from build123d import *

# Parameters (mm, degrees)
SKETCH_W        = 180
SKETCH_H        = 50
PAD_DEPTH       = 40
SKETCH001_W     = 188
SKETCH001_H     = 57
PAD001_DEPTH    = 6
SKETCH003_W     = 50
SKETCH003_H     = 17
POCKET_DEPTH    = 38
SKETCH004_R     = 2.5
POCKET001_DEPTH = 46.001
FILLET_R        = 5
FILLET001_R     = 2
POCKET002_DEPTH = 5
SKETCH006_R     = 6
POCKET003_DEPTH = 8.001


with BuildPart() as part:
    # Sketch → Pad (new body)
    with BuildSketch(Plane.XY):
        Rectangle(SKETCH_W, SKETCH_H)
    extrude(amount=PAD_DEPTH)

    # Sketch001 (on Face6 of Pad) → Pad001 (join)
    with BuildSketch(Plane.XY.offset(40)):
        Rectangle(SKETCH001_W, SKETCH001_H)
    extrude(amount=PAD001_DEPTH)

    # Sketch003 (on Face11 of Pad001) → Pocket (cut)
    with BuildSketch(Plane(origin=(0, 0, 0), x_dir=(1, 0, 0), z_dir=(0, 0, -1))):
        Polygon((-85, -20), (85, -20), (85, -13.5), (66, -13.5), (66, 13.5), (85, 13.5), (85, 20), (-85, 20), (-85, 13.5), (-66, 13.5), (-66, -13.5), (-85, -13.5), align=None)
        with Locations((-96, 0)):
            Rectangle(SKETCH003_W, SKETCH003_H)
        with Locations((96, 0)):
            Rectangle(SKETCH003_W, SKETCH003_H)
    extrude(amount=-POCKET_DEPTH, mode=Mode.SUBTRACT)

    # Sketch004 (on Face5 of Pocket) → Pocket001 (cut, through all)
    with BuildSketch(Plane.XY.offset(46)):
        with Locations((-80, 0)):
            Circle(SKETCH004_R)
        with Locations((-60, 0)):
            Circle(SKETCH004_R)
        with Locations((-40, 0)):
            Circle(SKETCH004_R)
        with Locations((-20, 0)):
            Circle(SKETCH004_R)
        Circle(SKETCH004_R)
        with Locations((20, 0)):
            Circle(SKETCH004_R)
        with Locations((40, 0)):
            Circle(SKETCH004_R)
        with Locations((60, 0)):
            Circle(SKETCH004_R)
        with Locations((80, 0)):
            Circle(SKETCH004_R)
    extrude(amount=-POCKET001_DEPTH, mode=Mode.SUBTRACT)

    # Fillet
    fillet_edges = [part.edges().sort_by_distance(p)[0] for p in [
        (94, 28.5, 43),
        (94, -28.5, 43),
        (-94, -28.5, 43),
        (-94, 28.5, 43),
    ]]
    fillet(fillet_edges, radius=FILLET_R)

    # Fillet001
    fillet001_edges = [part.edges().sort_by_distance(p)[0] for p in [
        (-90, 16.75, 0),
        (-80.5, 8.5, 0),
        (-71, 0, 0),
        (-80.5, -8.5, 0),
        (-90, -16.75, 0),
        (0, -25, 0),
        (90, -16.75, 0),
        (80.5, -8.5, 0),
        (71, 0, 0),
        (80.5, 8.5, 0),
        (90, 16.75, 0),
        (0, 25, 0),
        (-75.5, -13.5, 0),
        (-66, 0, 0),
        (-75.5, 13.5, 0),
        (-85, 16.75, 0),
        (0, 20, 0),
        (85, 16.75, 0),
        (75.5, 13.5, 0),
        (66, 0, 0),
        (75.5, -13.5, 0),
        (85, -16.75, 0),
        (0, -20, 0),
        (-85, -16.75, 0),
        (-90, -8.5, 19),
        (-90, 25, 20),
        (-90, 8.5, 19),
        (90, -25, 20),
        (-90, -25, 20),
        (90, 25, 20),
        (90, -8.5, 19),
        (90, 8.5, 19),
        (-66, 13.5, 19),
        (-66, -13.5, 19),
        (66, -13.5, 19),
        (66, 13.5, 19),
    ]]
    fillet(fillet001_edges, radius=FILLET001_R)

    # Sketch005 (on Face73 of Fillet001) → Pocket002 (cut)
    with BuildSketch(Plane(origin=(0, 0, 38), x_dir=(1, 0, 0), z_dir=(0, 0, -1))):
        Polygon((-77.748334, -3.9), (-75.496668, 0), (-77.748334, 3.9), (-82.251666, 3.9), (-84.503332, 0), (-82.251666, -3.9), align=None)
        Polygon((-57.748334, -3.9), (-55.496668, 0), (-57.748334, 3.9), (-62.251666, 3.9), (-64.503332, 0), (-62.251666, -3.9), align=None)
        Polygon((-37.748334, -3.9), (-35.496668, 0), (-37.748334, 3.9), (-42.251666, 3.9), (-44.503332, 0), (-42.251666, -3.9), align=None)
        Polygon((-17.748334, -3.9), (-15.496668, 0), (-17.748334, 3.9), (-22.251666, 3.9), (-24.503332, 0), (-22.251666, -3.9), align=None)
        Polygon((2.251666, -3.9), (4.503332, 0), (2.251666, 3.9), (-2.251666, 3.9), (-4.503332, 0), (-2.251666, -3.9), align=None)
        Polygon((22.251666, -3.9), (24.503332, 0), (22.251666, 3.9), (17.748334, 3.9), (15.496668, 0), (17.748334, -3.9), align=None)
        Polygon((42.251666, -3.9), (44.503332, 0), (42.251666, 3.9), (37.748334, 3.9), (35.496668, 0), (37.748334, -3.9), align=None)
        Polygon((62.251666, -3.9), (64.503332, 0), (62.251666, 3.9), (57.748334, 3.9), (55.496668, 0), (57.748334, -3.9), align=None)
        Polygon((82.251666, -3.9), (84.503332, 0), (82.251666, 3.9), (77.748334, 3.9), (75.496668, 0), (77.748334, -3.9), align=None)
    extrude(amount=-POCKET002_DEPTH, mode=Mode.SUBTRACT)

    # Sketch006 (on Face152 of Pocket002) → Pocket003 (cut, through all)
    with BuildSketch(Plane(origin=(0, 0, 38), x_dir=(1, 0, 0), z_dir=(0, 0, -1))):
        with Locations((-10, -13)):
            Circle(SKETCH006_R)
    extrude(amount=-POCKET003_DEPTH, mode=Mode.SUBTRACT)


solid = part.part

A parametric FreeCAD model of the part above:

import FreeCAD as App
import Part
import Sketcher
Q = App.Units.Quantity


def edges_at(feature, points):
    """Names of the edges that pass closest to the given points."""
    edges = feature.Shape.Edges
    near = lambda p: min(range(len(edges)), key=lambda i: edges[i].distToShape(Part.Vertex(*p))[0])
    return sorted({f"Edge{near(p) + 1}" for p in points})

doc = App.newDocument("Part")
body = doc.addObject("PartDesign::Body", "Body")

sketch1 = body.newObject("Sketcher::SketchObject", "Sketch")
sketch1.AttachmentSupport = (doc.getObject("XY_Plane"), [""])
sketch1.MapMode = "FlatFace"
sketch1.addGeometry(Part.LineSegment(App.Vector(-90, 25, 0), App.Vector(-90, -25, 0)), False)
sketch1.addGeometry(Part.LineSegment(App.Vector(-90, -25, 0), App.Vector(90, -25, 0)), False)
sketch1.addGeometry(Part.LineSegment(App.Vector(90, -25, 0), App.Vector(90, 25, 0)), False)
sketch1.addGeometry(Part.LineSegment(App.Vector(90, 25, 0), App.Vector(-90, 25, 0)), False)
sketch1.addConstraint(Sketcher.Constraint("Coincident", 0, 2, 1, 1))
sketch1.addConstraint(Sketcher.Constraint("Coincident", 1, 2, 2, 1))
sketch1.addConstraint(Sketcher.Constraint("Coincident", 2, 2, 3, 1))
sketch1.addConstraint(Sketcher.Constraint("Coincident", 3, 2, 0, 1))
sketch1.addConstraint(Sketcher.Constraint("Vertical", 0))
sketch1.addConstraint(Sketcher.Constraint("Horizontal", 1))
sketch1.addConstraint(Sketcher.Constraint("Vertical", 2))
sketch1.addConstraint(Sketcher.Constraint("Horizontal", 3))
sketch1.addConstraint(Sketcher.Constraint("Symmetric", 0, 2, 2, 2, -1, 1))
sketch1.addConstraint(Sketcher.Constraint("DistanceX", 1, 1, 1, 2, 180.0))
sketch1.addConstraint(Sketcher.Constraint("DistanceY", 0, 2, 0, 1, 50.0))
pad1 = body.newObject("PartDesign::Pad", "Pad")
pad1.Profile = sketch1
pad1.Length = 40

sketch2 = body.newObject("Sketcher::SketchObject", "Sketch001")
sketch2.AttachmentSupport = (doc.getObject("XY_Plane"), [""])
sketch2.MapMode = "FlatFace"
sketch2.AttachmentOffset = App.Placement(App.Vector(0, 0, 40), App.Rotation())
sketch2.addGeometry(Part.LineSegment(App.Vector(-94, 28, 0), App.Vector(-94, -28, 0)), False)
sketch2.addGeometry(Part.LineSegment(App.Vector(-94, -28, 0), App.Vector(94, -28, 0)), False)
sketch2.addGeometry(Part.LineSegment(App.Vector(94, -28, 0), App.Vector(94, 28, 0)), False)
sketch2.addGeometry(Part.LineSegment(App.Vector(94, 28, 0), App.Vector(-94, 28, 0)), False)
sketch2.addConstraint(Sketcher.Constraint("Coincident", 0, 2, 1, 1))
sketch2.addConstraint(Sketcher.Constraint("Coincident", 1, 2, 2, 1))
sketch2.addConstraint(Sketcher.Constraint("Coincident", 2, 2, 3, 1))
sketch2.addConstraint(Sketcher.Constraint("Coincident", 3, 2, 0, 1))
sketch2.addConstraint(Sketcher.Constraint("Vertical", 0))
sketch2.addConstraint(Sketcher.Constraint("Horizontal", 1))
sketch2.addConstraint(Sketcher.Constraint("Vertical", 2))
sketch2.addConstraint(Sketcher.Constraint("Horizontal", 3))
sketch2.addConstraint(Sketcher.Constraint("Symmetric", 0, 2, 2, 2, -1, 1))
sketch2.addConstraint(Sketcher.Constraint("DistanceX", 1, 1, 1, 2, 188.0))
sketch2.addConstraint(Sketcher.Constraint("DistanceY", 0, 2, 0, 1, 57.0))
pad2 = body.newObject("PartDesign::Pad", "Pad001")
pad2.Profile = sketch2
pad2.Length = 6

sketch3 = body.newObject("Sketcher::SketchObject", "Sketch002")
sketch3.AttachmentSupport = (doc.getObject("XY_Plane"), [""])
sketch3.MapMode = "FlatFace"
sketch3.addGeometry(Part.LineSegment(App.Vector(-85, 20, 0), App.Vector(85, 20, 0)), False)
sketch3.addGeometry(Part.LineSegment(App.Vector(85, 20, 0), App.Vector(85, 14, 0)), False)
sketch3.addGeometry(Part.LineSegment(App.Vector(85, 14, 0), App.Vector(66, 14, 0)), False)
sketch3.addGeometry(Part.LineSegment(App.Vector(66, 14, 0), App.Vector(66, -14, 0)), False)
sketch3.addGeometry(Part.LineSegment(App.Vector(66, -14, 0), App.Vector(85, -14, 0)), False)
sketch3.addGeometry(Part.LineSegment(App.Vector(85, -14, 0), App.Vector(85, -20, 0)), False)
sketch3.addGeometry(Part.LineSegment(App.Vector(85, -20, 0), App.Vector(-85, -20, 0)), False)
sketch3.addGeometry(Part.LineSegment(App.Vector(-85, -20, 0), App.Vector(-85, -14, 0)), False)
sketch3.addGeometry(Part.LineSegment(App.Vector(-85, -14, 0), App.Vector(-66, -14, 0)), False)
sketch3.addGeometry(Part.LineSegment(App.Vector(-66, -14, 0), App.Vector(-66, 14, 0)), False)
sketch3.addGeometry(Part.LineSegment(App.Vector(-66, 14, 0), App.Vector(-85, 14, 0)), False)
sketch3.addGeometry(Part.LineSegment(App.Vector(-85, 14, 0), App.Vector(-85, 20, 0)), False)
sketch3.addGeometry(Part.LineSegment(App.Vector(-121, -8, 0), App.Vector(-121, 8, 0)), False)
sketch3.addGeometry(Part.LineSegment(App.Vector(-121, 8, 0), App.Vector(-71, 8, 0)), False)
sketch3.addGeometry(Part.LineSegment(App.Vector(-71, 8, 0), App.Vector(-71, -8, 0)), False)
sketch3.addGeometry(Part.LineSegment(App.Vector(-71, -8, 0), App.Vector(-121, -8, 0)), False)
sketch3.addGeometry(Part.LineSegment(App.Vector(71, -8, 0), App.Vector(71, 8, 0)), False)
sketch3.addGeometry(Part.LineSegment(App.Vector(71, 8, 0), App.Vector(121, 8, 0)), False)
sketch3.addGeometry(Part.LineSegment(App.Vector(121, 8, 0), App.Vector(121, -8, 0)), False)
sketch3.addGeometry(Part.LineSegment(App.Vector(121, -8, 0), App.Vector(71, -8, 0)), False)
sketch3.addConstraint(Sketcher.Constraint("Coincident", 0, 2, 1, 1))
sketch3.addConstraint(Sketcher.Constraint("Coincident", 1, 2, 2, 1))
sketch3.addConstraint(Sketcher.Constraint("Coincident", 2, 2, 3, 1))
sketch3.addConstraint(Sketcher.Constraint("Coincident", 3, 2, 4, 1))
sketch3.addConstraint(Sketcher.Constraint("Coincident", 4, 2, 5, 1))
sketch3.addConstraint(Sketcher.Constraint("Coincident", 5, 2, 6, 1))
sketch3.addConstraint(Sketcher.Constraint("Coincident", 6, 2, 7, 1))
sketch3.addConstraint(Sketcher.Constraint("Coincident", 7, 2, 8, 1))
sketch3.addConstraint(Sketcher.Constraint("Coincident", 8, 2, 9, 1))
sketch3.addConstraint(Sketcher.Constraint("Coincident", 9, 2, 10, 1))
sketch3.addConstraint(Sketcher.Constraint("Coincident", 10, 2, 11, 1))
sketch3.addConstraint(Sketcher.Constraint("Coincident", 11, 2, 0, 1))
sketch3.addConstraint(Sketcher.Constraint("Coincident", 12, 2, 13, 1))
sketch3.addConstraint(Sketcher.Constraint("Coincident", 13, 2, 14, 1))
sketch3.addConstraint(Sketcher.Constraint("Coincident", 14, 2, 15, 1))
sketch3.addConstraint(Sketcher.Constraint("Coincident", 15, 2, 12, 1))
sketch3.addConstraint(Sketcher.Constraint("Coincident", 16, 2, 17, 1))
sketch3.addConstraint(Sketcher.Constraint("Coincident", 17, 2, 18, 1))
sketch3.addConstraint(Sketcher.Constraint("Coincident", 18, 2, 19, 1))
sketch3.addConstraint(Sketcher.Constraint("Coincident", 19, 2, 16, 1))
sketch3.addConstraint(Sketcher.Constraint("Horizontal", 0))
sketch3.addConstraint(Sketcher.Constraint("Vertical", 1))
sketch3.addConstraint(Sketcher.Constraint("Horizontal", 2))
sketch3.addConstraint(Sketcher.Constraint("Vertical", 3))
sketch3.addConstraint(Sketcher.Constraint("Horizontal", 4))
sketch3.addConstraint(Sketcher.Constraint("Vertical", 5))
sketch3.addConstraint(Sketcher.Constraint("Horizontal", 6))
sketch3.addConstraint(Sketcher.Constraint("Vertical", 7))
sketch3.addConstraint(Sketcher.Constraint("Horizontal", 8))
sketch3.addConstraint(Sketcher.Constraint("Vertical", 9))
sketch3.addConstraint(Sketcher.Constraint("Horizontal", 10))
sketch3.addConstraint(Sketcher.Constraint("Vertical", 11))
sketch3.addConstraint(Sketcher.Constraint("Vertical", 12))
sketch3.addConstraint(Sketcher.Constraint("Horizontal", 13))
sketch3.addConstraint(Sketcher.Constraint("Vertical", 14))
sketch3.addConstraint(Sketcher.Constraint("Horizontal", 15))
sketch3.addConstraint(Sketcher.Constraint("Vertical", 16))
sketch3.addConstraint(Sketcher.Constraint("Horizontal", 17))
sketch3.addConstraint(Sketcher.Constraint("Vertical", 18))
sketch3.addConstraint(Sketcher.Constraint("Horizontal", 19))
sketch3.addConstraint(Sketcher.Constraint("Symmetric", 0, 2, 6, 2, -1, 1))
sketch3.addConstraint(Sketcher.Constraint("Symmetric", 2, 2, 8, 2, -1, 1))
sketch3.addConstraint(Sketcher.Constraint("Symmetric", 4, 2, 10, 2, -1, 1))
sketch3.addConstraint(Sketcher.Constraint("Symmetric", 14, 2, 16, 2, -1, 1))
sketch3.addConstraint(Sketcher.Constraint("Symmetric", 12, 2, 18, 2, -1, 1))
sketch3.addConstraint(Sketcher.Constraint("Symmetric", 4, 2, 7, 2, -2))
sketch3.addConstraint(Sketcher.Constraint("Horizontal", 13, 2, 16, 2))
sketch3.addConstraint(Sketcher.Constraint("DistanceX", 0, 1, 0, 2, 170.0))
sketch3.addConstraint(Sketcher.Constraint("DistanceX", 2, 2, 2, 1, 19.0))
sketch3.addConstraint(Sketcher.Constraint("DistanceX", 13, 1, 13, 2, 50.0))
sketch3.addConstraint(Sketcher.Constraint("DistanceY", 3, 2, 3, 1, 27.0))
sketch3.addConstraint(Sketcher.Constraint("DistanceY", 12, 1, 12, 2, 17.0))
sketch3.addConstraint(Sketcher.Constraint("DistanceY", 1, 2, 1, 1, 6.5))
sketch3.addConstraint(Sketcher.Constraint("DistanceX", 12, 2, -1, 1, 121.0))
pocket1 = body.newObject("PartDesign::Pocket", "Pocket")
pocket1.Profile = sketch3
pocket1.Length = 38
pocket1.Reversed = True

sketch4 = body.newObject("Sketcher::SketchObject", "Sketch003")
sketch4.AttachmentSupport = (doc.getObject("XY_Plane"), [""])
sketch4.MapMode = "FlatFace"
sketch4.AttachmentOffset = App.Placement(App.Vector(0, 0, 46), App.Rotation())
sketch4.addGeometry(Part.Circle(App.Vector(-80, 0, 0), App.Vector(0, 0, 1), 2.5), False)
sketch4.addGeometry(Part.Circle(App.Vector(-60, 0, 0), App.Vector(0, 0, 1), 2.5), False)
sketch4.addGeometry(Part.Circle(App.Vector(-40, 0, 0), App.Vector(0, 0, 1), 2.5), False)
sketch4.addGeometry(Part.Circle(App.Vector(-20, 0, 0), App.Vector(0, 0, 1), 2.5), False)
sketch4.addGeometry(Part.Circle(App.Vector(0, 0, 0), App.Vector(0, 0, 1), 2.5), False)
sketch4.addGeometry(Part.Circle(App.Vector(20, 0, 0), App.Vector(0, 0, 1), 2.5), False)
sketch4.addGeometry(Part.Circle(App.Vector(40, 0, 0), App.Vector(0, 0, 1), 2.5), False)
sketch4.addGeometry(Part.Circle(App.Vector(60, 0, 0), App.Vector(0, 0, 1), 2.5), False)
sketch4.addGeometry(Part.Circle(App.Vector(80, 0, 0), App.Vector(0, 0, 1), 2.5), False)
sketch4.addConstraint(Sketcher.Constraint("Coincident", 4, 3, -1, 1))
sketch4.addConstraint(Sketcher.Constraint("Equal", 0, 1))
sketch4.addConstraint(Sketcher.Constraint("Equal", 1, 2))
sketch4.addConstraint(Sketcher.Constraint("Equal", 2, 3))
sketch4.addConstraint(Sketcher.Constraint("Equal", 3, 4))
sketch4.addConstraint(Sketcher.Constraint("Equal", 4, 5))
sketch4.addConstraint(Sketcher.Constraint("Equal", 5, 6))
sketch4.addConstraint(Sketcher.Constraint("Equal", 6, 7))
sketch4.addConstraint(Sketcher.Constraint("Equal", 7, 8))
sketch4.addConstraint(Sketcher.Constraint("Symmetric", 3, 3, 5, 3, -1, 1))
sketch4.addConstraint(Sketcher.Constraint("Symmetric", 2, 3, 6, 3, -1, 1))
sketch4.addConstraint(Sketcher.Constraint("Symmetric", 1, 3, 7, 3, -1, 1))
sketch4.addConstraint(Sketcher.Constraint("Symmetric", 0, 3, 8, 3, -1, 1))
sketch4.addConstraint(Sketcher.Constraint("PointOnObject", 0, 3, -1))
sketch4.addConstraint(Sketcher.Constraint("PointOnObject", 1, 3, -1))
sketch4.addConstraint(Sketcher.Constraint("PointOnObject", 2, 3, -1))
sketch4.addConstraint(Sketcher.Constraint("PointOnObject", 3, 3, -1))
sketch4.addConstraint(Sketcher.Constraint("Diameter", 0, 5.0))
sketch4.addConstraint(Sketcher.Constraint("DistanceX", 0, 3, -1, 1, 80.0))
sketch4.addConstraint(Sketcher.Constraint("DistanceX", 1, 3, -1, 1, 60.0))
sketch4.addConstraint(Sketcher.Constraint("DistanceX", 2, 3, -1, 1, 40.0))
sketch4.addConstraint(Sketcher.Constraint("DistanceX", 3, 3, -1, 1, 20.0))
pocket2 = body.newObject("PartDesign::Pocket", "Pocket001")
pocket2.Profile = sketch4
pocket2.Type = "ThroughAll"
doc.recompute()

fillet = body.newObject("PartDesign::Fillet", "Fillet")
fillet.Base = (pocket2, edges_at(pocket2, [
    (94, 28.5, 43),
    (94, -28.5, 43),
    (-94, -28.5, 43),
    (-94, 28.5, 43),
]))
fillet.Radius = 5
doc.recompute()

fillet2 = body.newObject("PartDesign::Fillet", "Fillet001")
fillet2.Base = (fillet, edges_at(fillet, [
    (-90, 16.75, 0),
    (-80.5, 8.5, 0),
    (-71, 0, 0),
    (-80.5, -8.5, 0),
    (-90, -16.75, 0),
    (0, -25, 0),
    (90, -16.75, 0),
    (80.5, -8.5, 0),
    (71, 0, 0),
    (80.5, 8.5, 0),
    (90, 16.75, 0),
    (0, 25, 0),
    (-75.5, -13.5, 0),
    (-66, 0, 0),
    (-75.5, 13.5, 0),
    (-85, 16.75, 0),
    (0, 20, 0),
    (85, 16.75, 0),
    (75.5, 13.5, 0),
    (66, 0, 0),
    (75.5, -13.5, 0),
    (85, -16.75, 0),
    (0, -20, 0),
    (-85, -16.75, 0),
    (-90, -8.5, 19),
    (-90, 25, 20),
    (-90, 8.5, 19),
    (90, -25, 20),
    (-90, -25, 20),
    (90, 25, 20),
    (90, -8.5, 19),
    (90, 8.5, 19),
    (-66, 13.5, 19),
    (-66, -13.5, 19),
    (66, -13.5, 19),
    (66, 13.5, 19),
]))
fillet2.Radius = 2

sketch5 = body.newObject("Sketcher::SketchObject", "Sketch004")
sketch5.AttachmentSupport = (doc.getObject("XY_Plane"), [""])
sketch5.MapMode = "FlatFace"
sketch5.AttachmentOffset = App.Placement(App.Vector(0, 0, 38), App.Rotation())
sketch5.addGeometry(Part.LineSegment(App.Vector(-77.7, 3.9, 0), App.Vector(-75.5, 0, 0)), False)
sketch5.addGeometry(Part.LineSegment(App.Vector(-75.5, 0, 0), App.Vector(-77.7, -3.9, 0)), False)
sketch5.addGeometry(Part.LineSegment(App.Vector(-77.7, -3.9, 0), App.Vector(-82.3, -3.9, 0)), False)
sketch5.addGeometry(Part.LineSegment(App.Vector(-82.3, -3.9, 0), App.Vector(-84.5, 0, 0)), False)
sketch5.addGeometry(Part.LineSegment(App.Vector(-84.5, 0, 0), App.Vector(-82.3, 3.9, 0)), False)
sketch5.addGeometry(Part.LineSegment(App.Vector(-82.3, 3.9, 0), App.Vector(-77.7, 3.9, 0)), False)
sketch5.addGeometry(Part.LineSegment(App.Vector(-57.7, 3.9, 0), App.Vector(-55.5, 0, 0)), False)
sketch5.addGeometry(Part.LineSegment(App.Vector(-55.5, 0, 0), App.Vector(-57.7, -3.9, 0)), False)
sketch5.addGeometry(Part.LineSegment(App.Vector(-57.7, -3.9, 0), App.Vector(-62.3, -3.9, 0)), False)
sketch5.addGeometry(Part.LineSegment(App.Vector(-62.3, -3.9, 0), App.Vector(-64.5, 0, 0)), False)
sketch5.addGeometry(Part.LineSegment(App.Vector(-64.5, 0, 0), App.Vector(-62.3, 3.9, 0)), False)
sketch5.addGeometry(Part.LineSegment(App.Vector(-62.3, 3.9, 0), App.Vector(-57.7, 3.9, 0)), False)
sketch5.addGeometry(Part.LineSegment(App.Vector(-37.7, 3.9, 0), App.Vector(-35.5, 0, 0)), False)
sketch5.addGeometry(Part.LineSegment(App.Vector(-35.5, 0, 0), App.Vector(-37.7, -3.9, 0)), False)
sketch5.addGeometry(Part.LineSegment(App.Vector(-37.7, -3.9, 0), App.Vector(-42.3, -3.9, 0)), False)
sketch5.addGeometry(Part.LineSegment(App.Vector(-42.3, -3.9, 0), App.Vector(-44.5, 0, 0)), False)
sketch5.addGeometry(Part.LineSegment(App.Vector(-44.5, 0, 0), App.Vector(-42.3, 3.9, 0)), False)
sketch5.addGeometry(Part.LineSegment(App.Vector(-42.3, 3.9, 0), App.Vector(-37.7, 3.9, 0)), False)
sketch5.addGeometry(Part.LineSegment(App.Vector(-17.7, 3.9, 0), App.Vector(-15.5, 0, 0)), False)
sketch5.addGeometry(Part.LineSegment(App.Vector(-15.5, 0, 0), App.Vector(-17.7, -3.9, 0)), False)
sketch5.addGeometry(Part.LineSegment(App.Vector(-17.7, -3.9, 0), App.Vector(-22.3, -3.9, 0)), False)
sketch5.addGeometry(Part.LineSegment(App.Vector(-22.3, -3.9, 0), App.Vector(-24.5, 0, 0)), False)
sketch5.addGeometry(Part.LineSegment(App.Vector(-24.5, 0, 0), App.Vector(-22.3, 3.9, 0)), False)
sketch5.addGeometry(Part.LineSegment(App.Vector(-22.3, 3.9, 0), App.Vector(-17.7, 3.9, 0)), False)
sketch5.addGeometry(Part.LineSegment(App.Vector(2.3, 3.9, 0), App.Vector(4.5, 0, 0)), False)
sketch5.addGeometry(Part.LineSegment(App.Vector(4.5, 0, 0), App.Vector(2.3, -3.9, 0)), False)
sketch5.addGeometry(Part.LineSegment(App.Vector(2.3, -3.9, 0), App.Vector(-2.3, -3.9, 0)), False)
sketch5.addGeometry(Part.LineSegment(App.Vector(-2.3, -3.9, 0), App.Vector(-4.5, 0, 0)), False)
sketch5.addGeometry(Part.LineSegment(App.Vector(-4.5, 0, 0), App.Vector(-2.3, 3.9, 0)), False)
sketch5.addGeometry(Part.LineSegment(App.Vector(-2.3, 3.9, 0), App.Vector(2.3, 3.9, 0)), False)
sketch5.addGeometry(Part.LineSegment(App.Vector(22.3, 3.9, 0), App.Vector(24.5, 0, 0)), False)
sketch5.addGeometry(Part.LineSegment(App.Vector(24.5, 0, 0), App.Vector(22.3, -3.9, 0)), False)
sketch5.addGeometry(Part.LineSegment(App.Vector(22.3, -3.9, 0), App.Vector(17.7, -3.9, 0)), False)
sketch5.addGeometry(Part.LineSegment(App.Vector(17.7, -3.9, 0), App.Vector(15.5, 0, 0)), False)
sketch5.addGeometry(Part.LineSegment(App.Vector(15.5, 0, 0), App.Vector(17.7, 3.9, 0)), False)
sketch5.addGeometry(Part.LineSegment(App.Vector(17.7, 3.9, 0), App.Vector(22.3, 3.9, 0)), False)
sketch5.addGeometry(Part.LineSegment(App.Vector(42.3, 3.9, 0), App.Vector(44.5, 0, 0)), False)
sketch5.addGeometry(Part.LineSegment(App.Vector(44.5, 0, 0), App.Vector(42.3, -3.9, 0)), False)
sketch5.addGeometry(Part.LineSegment(App.Vector(42.3, -3.9, 0), App.Vector(37.7, -3.9, 0)), False)
sketch5.addGeometry(Part.LineSegment(App.Vector(37.7, -3.9, 0), App.Vector(35.5, 0, 0)), False)
sketch5.addGeometry(Part.LineSegment(App.Vector(35.5, 0, 0), App.Vector(37.7, 3.9, 0)), False)
sketch5.addGeometry(Part.LineSegment(App.Vector(37.7, 3.9, 0), App.Vector(42.3, 3.9, 0)), False)
sketch5.addGeometry(Part.LineSegment(App.Vector(62.3, 3.9, 0), App.Vector(64.5, 0, 0)), False)
sketch5.addGeometry(Part.LineSegment(App.Vector(64.5, 0, 0), App.Vector(62.3, -3.9, 0)), False)
sketch5.addGeometry(Part.LineSegment(App.Vector(62.3, -3.9, 0), App.Vector(57.7, -3.9, 0)), False)
sketch5.addGeometry(Part.LineSegment(App.Vector(57.7, -3.9, 0), App.Vector(55.5, 0, 0)), False)
sketch5.addGeometry(Part.LineSegment(App.Vector(55.5, 0, 0), App.Vector(57.7, 3.9, 0)), False)
sketch5.addGeometry(Part.LineSegment(App.Vector(57.7, 3.9, 0), App.Vector(62.3, 3.9, 0)), False)
sketch5.addGeometry(Part.LineSegment(App.Vector(82.3, 3.9, 0), App.Vector(84.5, 0, 0)), False)
sketch5.addGeometry(Part.LineSegment(App.Vector(84.5, 0, 0), App.Vector(82.3, -3.9, 0)), False)
sketch5.addGeometry(Part.LineSegment(App.Vector(82.3, -3.9, 0), App.Vector(77.7, -3.9, 0)), False)
sketch5.addGeometry(Part.LineSegment(App.Vector(77.7, -3.9, 0), App.Vector(75.5, 0, 0)), False)
sketch5.addGeometry(Part.LineSegment(App.Vector(75.5, 0, 0), App.Vector(77.7, 3.9, 0)), False)
sketch5.addGeometry(Part.LineSegment(App.Vector(77.7, 3.9, 0), App.Vector(82.3, 3.9, 0)), False)
sketch5.addConstraint(Sketcher.Constraint("Coincident", 0, 2, 1, 1))
sketch5.addConstraint(Sketcher.Constraint("Coincident", 1, 2, 2, 1))
sketch5.addConstraint(Sketcher.Constraint("Coincident", 2, 2, 3, 1))
sketch5.addConstraint(Sketcher.Constraint("Coincident", 3, 2, 4, 1))
sketch5.addConstraint(Sketcher.Constraint("Coincident", 4, 2, 5, 1))
sketch5.addConstraint(Sketcher.Constraint("Coincident", 5, 2, 0, 1))
sketch5.addConstraint(Sketcher.Constraint("Coincident", 6, 2, 7, 1))
sketch5.addConstraint(Sketcher.Constraint("Coincident", 7, 2, 8, 1))
sketch5.addConstraint(Sketcher.Constraint("Coincident", 8, 2, 9, 1))
sketch5.addConstraint(Sketcher.Constraint("Coincident", 9, 2, 10, 1))
sketch5.addConstraint(Sketcher.Constraint("Coincident", 10, 2, 11, 1))
sketch5.addConstraint(Sketcher.Constraint("Coincident", 11, 2, 6, 1))
sketch5.addConstraint(Sketcher.Constraint("Coincident", 12, 2, 13, 1))
sketch5.addConstraint(Sketcher.Constraint("Coincident", 13, 2, 14, 1))
sketch5.addConstraint(Sketcher.Constraint("Coincident", 14, 2, 15, 1))
sketch5.addConstraint(Sketcher.Constraint("Coincident", 15, 2, 16, 1))
sketch5.addConstraint(Sketcher.Constraint("Coincident", 16, 2, 17, 1))
sketch5.addConstraint(Sketcher.Constraint("Coincident", 17, 2, 12, 1))
sketch5.addConstraint(Sketcher.Constraint("Coincident", 18, 2, 19, 1))
sketch5.addConstraint(Sketcher.Constraint("Coincident", 19, 2, 20, 1))
sketch5.addConstraint(Sketcher.Constraint("Coincident", 20, 2, 21, 1))
sketch5.addConstraint(Sketcher.Constraint("Coincident", 21, 2, 22, 1))
sketch5.addConstraint(Sketcher.Constraint("Coincident", 22, 2, 23, 1))
sketch5.addConstraint(Sketcher.Constraint("Coincident", 23, 2, 18, 1))
sketch5.addConstraint(Sketcher.Constraint("Coincident", 24, 2, 25, 1))
sketch5.addConstraint(Sketcher.Constraint("Coincident", 25, 2, 26, 1))
sketch5.addConstraint(Sketcher.Constraint("Coincident", 26, 2, 27, 1))
sketch5.addConstraint(Sketcher.Constraint("Coincident", 27, 2, 28, 1))
sketch5.addConstraint(Sketcher.Constraint("Coincident", 28, 2, 29, 1))
sketch5.addConstraint(Sketcher.Constraint("Coincident", 29, 2, 24, 1))
sketch5.addConstraint(Sketcher.Constraint("Coincident", 30, 2, 31, 1))
sketch5.addConstraint(Sketcher.Constraint("Coincident", 31, 2, 32, 1))
sketch5.addConstraint(Sketcher.Constraint("Coincident", 32, 2, 33, 1))
sketch5.addConstraint(Sketcher.Constraint("Coincident", 33, 2, 34, 1))
sketch5.addConstraint(Sketcher.Constraint("Coincident", 34, 2, 35, 1))
sketch5.addConstraint(Sketcher.Constraint("Coincident", 35, 2, 30, 1))
sketch5.addConstraint(Sketcher.Constraint("Coincident", 36, 2, 37, 1))
sketch5.addConstraint(Sketcher.Constraint("Coincident", 37, 2, 38, 1))
sketch5.addConstraint(Sketcher.Constraint("Coincident", 38, 2, 39, 1))
sketch5.addConstraint(Sketcher.Constraint("Coincident", 39, 2, 40, 1))
sketch5.addConstraint(Sketcher.Constraint("Coincident", 40, 2, 41, 1))
sketch5.addConstraint(Sketcher.Constraint("Coincident", 41, 2, 36, 1))
sketch5.addConstraint(Sketcher.Constraint("Coincident", 42, 2, 43, 1))
sketch5.addConstraint(Sketcher.Constraint("Coincident", 43, 2, 44, 1))
sketch5.addConstraint(Sketcher.Constraint("Coincident", 44, 2, 45, 1))
sketch5.addConstraint(Sketcher.Constraint("Coincident", 45, 2, 46, 1))
sketch5.addConstraint(Sketcher.Constraint("Coincident", 46, 2, 47, 1))
sketch5.addConstraint(Sketcher.Constraint("Coincident", 47, 2, 42, 1))
sketch5.addConstraint(Sketcher.Constraint("Coincident", 48, 2, 49, 1))
sketch5.addConstraint(Sketcher.Constraint("Coincident", 49, 2, 50, 1))
sketch5.addConstraint(Sketcher.Constraint("Coincident", 50, 2, 51, 1))
sketch5.addConstraint(Sketcher.Constraint("Coincident", 51, 2, 52, 1))
sketch5.addConstraint(Sketcher.Constraint("Coincident", 52, 2, 53, 1))
sketch5.addConstraint(Sketcher.Constraint("Coincident", 53, 2, 48, 1))
sketch5.addConstraint(Sketcher.Constraint("Horizontal", 2))
sketch5.addConstraint(Sketcher.Constraint("Horizontal", 5))
sketch5.addConstraint(Sketcher.Constraint("Horizontal", 8))
sketch5.addConstraint(Sketcher.Constraint("Horizontal", 11))
sketch5.addConstraint(Sketcher.Constraint("Horizontal", 14))
sketch5.addConstraint(Sketcher.Constraint("Horizontal", 17))
sketch5.addConstraint(Sketcher.Constraint("Horizontal", 20))
sketch5.addConstraint(Sketcher.Constraint("Horizontal", 23))
sketch5.addConstraint(Sketcher.Constraint("Horizontal", 26))
sketch5.addConstraint(Sketcher.Constraint("Horizontal", 29))
sketch5.addConstraint(Sketcher.Constraint("Horizontal", 32))
sketch5.addConstraint(Sketcher.Constraint("Horizontal", 35))
sketch5.addConstraint(Sketcher.Constraint("Horizontal", 38))
sketch5.addConstraint(Sketcher.Constraint("Horizontal", 41))
sketch5.addConstraint(Sketcher.Constraint("Horizontal", 44))
sketch5.addConstraint(Sketcher.Constraint("Horizontal", 47))
sketch5.addConstraint(Sketcher.Constraint("Horizontal", 50))
sketch5.addConstraint(Sketcher.Constraint("Horizontal", 53))
sketch5.addConstraint(Sketcher.Constraint("Symmetric", 24, 2, 27, 2, -1, 1))
sketch5.addConstraint(Sketcher.Constraint("Symmetric", 25, 2, 28, 2, -1, 1))
sketch5.addConstraint(Sketcher.Constraint("Symmetric", 21, 2, 30, 2, -1, 1))
sketch5.addConstraint(Sketcher.Constraint("Symmetric", 22, 2, 31, 2, -1, 1))
sketch5.addConstraint(Sketcher.Constraint("Symmetric", 18, 2, 33, 2, -1, 1))
sketch5.addConstraint(Sketcher.Constraint("Symmetric", 19, 2, 34, 2, -1, 1))
sketch5.addConstraint(Sketcher.Constraint("Symmetric", 15, 2, 36, 2, -1, 1))
sketch5.addConstraint(Sketcher.Constraint("Symmetric", 16, 2, 37, 2, -1, 1))
sketch5.addConstraint(Sketcher.Constraint("Symmetric", 12, 2, 39, 2, -1, 1))
sketch5.addConstraint(Sketcher.Constraint("Symmetric", 13, 2, 40, 2, -1, 1))
sketch5.addConstraint(Sketcher.Constraint("Symmetric", 9, 2, 42, 2, -1, 1))
sketch5.addConstraint(Sketcher.Constraint("Symmetric", 10, 2, 43, 2, -1, 1))
sketch5.addConstraint(Sketcher.Constraint("Symmetric", 6, 2, 45, 2, -1, 1))
sketch5.addConstraint(Sketcher.Constraint("Symmetric", 7, 2, 46, 2, -1, 1))
sketch5.addConstraint(Sketcher.Constraint("Symmetric", 3, 2, 48, 2, -1, 1))
sketch5.addConstraint(Sketcher.Constraint("Symmetric", 4, 2, 49, 2, -1, 1))
sketch5.addConstraint(Sketcher.Constraint("Symmetric", 0, 2, 51, 2, -1, 1))
sketch5.addConstraint(Sketcher.Constraint("Symmetric", 1, 2, 52, 2, -1, 1))
sketch5.addConstraint(Sketcher.Constraint("Symmetric", 20, 2, 31, 2, -2))
sketch5.addConstraint(Sketcher.Constraint("Symmetric", 14, 2, 37, 2, -2))
sketch5.addConstraint(Sketcher.Constraint("Symmetric", 8, 2, 43, 2, -2))
sketch5.addConstraint(Sketcher.Constraint("Symmetric", 2, 2, 49, 2, -2))
sketch5.addConstraint(Sketcher.Constraint("PointOnObject", 0, 2, -1))
sketch5.addConstraint(Sketcher.Constraint("PointOnObject", 3, 2, -1))
sketch5.addConstraint(Sketcher.Constraint("PointOnObject", 6, 2, -1))
sketch5.addConstraint(Sketcher.Constraint("PointOnObject", 9, 2, -1))
sketch5.addConstraint(Sketcher.Constraint("PointOnObject", 12, 2, -1))
sketch5.addConstraint(Sketcher.Constraint("PointOnObject", 15, 2, -1))
sketch5.addConstraint(Sketcher.Constraint("PointOnObject", 18, 2, -1))
sketch5.addConstraint(Sketcher.Constraint("PointOnObject", 21, 2, -1))
sketch5.addConstraint(Sketcher.Constraint("PointOnObject", 24, 2, -1))
sketch5.addConstraint(Sketcher.Constraint("Parallel", 0, 3))
sketch5.addConstraint(Sketcher.Constraint("Parallel", 1, 4))
sketch5.addConstraint(Sketcher.Constraint("Parallel", 3, 6))
sketch5.addConstraint(Sketcher.Constraint("Parallel", 4, 7))
sketch5.addConstraint(Sketcher.Constraint("Parallel", 6, 9))
sketch5.addConstraint(Sketcher.Constraint("Parallel", 9, 12))
sketch5.addConstraint(Sketcher.Constraint("Parallel", 10, 13))
sketch5.addConstraint(Sketcher.Constraint("Parallel", 12, 15))
sketch5.addConstraint(Sketcher.Constraint("Parallel", 15, 18))
sketch5.addConstraint(Sketcher.Constraint("Parallel", 16, 19))
sketch5.addConstraint(Sketcher.Constraint("Parallel", 18, 21))
sketch5.addConstraint(Sketcher.Constraint("Parallel", 21, 24))
sketch5.addConstraint(Sketcher.Constraint("Parallel", 22, 25))
sketch5.addConstraint(Sketcher.Constraint("Parallel", 24, 27))
sketch5.addConstraint(Sketcher.Constraint("Parallel", 27, 30))
sketch5.addConstraint(Sketcher.Constraint("Parallel", 30, 33))
sketch5.addConstraint(Sketcher.Constraint("Parallel", 33, 36))
sketch5.addConstraint(Sketcher.Constraint("Parallel", 36, 39))
sketch5.addConstraint(Sketcher.Constraint("Parallel", 39, 42))
sketch5.addConstraint(Sketcher.Constraint("Parallel", 42, 45))
sketch5.addConstraint(Sketcher.Constraint("Parallel", 45, 48))
sketch5.addConstraint(Sketcher.Constraint("Parallel", 48, 51))
sketch5.addConstraint(Sketcher.Constraint("Horizontal", 2, 2, 7, 2))
sketch5.addConstraint(Sketcher.Constraint("Horizontal", 8, 2, 13, 2))
sketch5.addConstraint(Sketcher.Constraint("Horizontal", 14, 2, 19, 2))
sketch5.addConstraint(Sketcher.Constraint("Horizontal", 20, 2, 25, 2))
sketch5.addConstraint(Sketcher.Constraint("Equal", 5, 8))
sketch5.addConstraint(Sketcher.Constraint("Equal", 11, 14))
sketch5.addConstraint(Sketcher.Constraint("Equal", 17, 20))
sketch5.addConstraint(Sketcher.Constraint("Equal", 23, 26))
sketch5.addConstraint(Sketcher.Constraint("Angle", 0, Q("-60.000001 deg")))
sketch5.addConstraint(Sketcher.Constraint("DistanceX", 0, 2, 6, 2, 20.0))
sketch5.addConstraint(Sketcher.Constraint("DistanceX", 6, 2, 12, 2, 20.0))
sketch5.addConstraint(Sketcher.Constraint("DistanceX", 12, 2, 18, 2, 20.0))
sketch5.addConstraint(Sketcher.Constraint("DistanceX", 18, 2, 24, 2, 20.0))
sketch5.addConstraint(Sketcher.Constraint("DistanceY", 1, 2, -1, 1, 3.9))
sketch5.addConstraint(Sketcher.Constraint("DistanceX", 2, 2, 0, 2, 6.754998))
pocket3 = body.newObject("PartDesign::Pocket", "Pocket002")
pocket3.Profile = sketch5
pocket3.Length = 5
pocket3.Reversed = True

sketch6 = body.newObject("Sketcher::SketchObject", "Sketch005")
sketch6.AttachmentSupport = (doc.getObject("XY_Plane"), [""])
sketch6.MapMode = "FlatFace"
sketch6.AttachmentOffset = App.Placement(App.Vector(0, 0, 38), App.Rotation())
sketch6.addGeometry(Part.Circle(App.Vector(-10, 13, 0), App.Vector(0, 0, 1), 6), False)
sketch6.addConstraint(Sketcher.Constraint("Diameter", 0, 12.0))
sketch6.addConstraint(Sketcher.Constraint("DistanceX", 0, 3, -1, 1, 10.0))
sketch6.addConstraint(Sketcher.Constraint("DistanceY", -1, 1, 0, 3, 13.0))
pocket4 = body.newObject("PartDesign::Pocket", "Pocket003")
pocket4.Profile = sketch6
pocket4.Type = "ThroughAll"
pocket4.Reversed = True

doc.recompute()
